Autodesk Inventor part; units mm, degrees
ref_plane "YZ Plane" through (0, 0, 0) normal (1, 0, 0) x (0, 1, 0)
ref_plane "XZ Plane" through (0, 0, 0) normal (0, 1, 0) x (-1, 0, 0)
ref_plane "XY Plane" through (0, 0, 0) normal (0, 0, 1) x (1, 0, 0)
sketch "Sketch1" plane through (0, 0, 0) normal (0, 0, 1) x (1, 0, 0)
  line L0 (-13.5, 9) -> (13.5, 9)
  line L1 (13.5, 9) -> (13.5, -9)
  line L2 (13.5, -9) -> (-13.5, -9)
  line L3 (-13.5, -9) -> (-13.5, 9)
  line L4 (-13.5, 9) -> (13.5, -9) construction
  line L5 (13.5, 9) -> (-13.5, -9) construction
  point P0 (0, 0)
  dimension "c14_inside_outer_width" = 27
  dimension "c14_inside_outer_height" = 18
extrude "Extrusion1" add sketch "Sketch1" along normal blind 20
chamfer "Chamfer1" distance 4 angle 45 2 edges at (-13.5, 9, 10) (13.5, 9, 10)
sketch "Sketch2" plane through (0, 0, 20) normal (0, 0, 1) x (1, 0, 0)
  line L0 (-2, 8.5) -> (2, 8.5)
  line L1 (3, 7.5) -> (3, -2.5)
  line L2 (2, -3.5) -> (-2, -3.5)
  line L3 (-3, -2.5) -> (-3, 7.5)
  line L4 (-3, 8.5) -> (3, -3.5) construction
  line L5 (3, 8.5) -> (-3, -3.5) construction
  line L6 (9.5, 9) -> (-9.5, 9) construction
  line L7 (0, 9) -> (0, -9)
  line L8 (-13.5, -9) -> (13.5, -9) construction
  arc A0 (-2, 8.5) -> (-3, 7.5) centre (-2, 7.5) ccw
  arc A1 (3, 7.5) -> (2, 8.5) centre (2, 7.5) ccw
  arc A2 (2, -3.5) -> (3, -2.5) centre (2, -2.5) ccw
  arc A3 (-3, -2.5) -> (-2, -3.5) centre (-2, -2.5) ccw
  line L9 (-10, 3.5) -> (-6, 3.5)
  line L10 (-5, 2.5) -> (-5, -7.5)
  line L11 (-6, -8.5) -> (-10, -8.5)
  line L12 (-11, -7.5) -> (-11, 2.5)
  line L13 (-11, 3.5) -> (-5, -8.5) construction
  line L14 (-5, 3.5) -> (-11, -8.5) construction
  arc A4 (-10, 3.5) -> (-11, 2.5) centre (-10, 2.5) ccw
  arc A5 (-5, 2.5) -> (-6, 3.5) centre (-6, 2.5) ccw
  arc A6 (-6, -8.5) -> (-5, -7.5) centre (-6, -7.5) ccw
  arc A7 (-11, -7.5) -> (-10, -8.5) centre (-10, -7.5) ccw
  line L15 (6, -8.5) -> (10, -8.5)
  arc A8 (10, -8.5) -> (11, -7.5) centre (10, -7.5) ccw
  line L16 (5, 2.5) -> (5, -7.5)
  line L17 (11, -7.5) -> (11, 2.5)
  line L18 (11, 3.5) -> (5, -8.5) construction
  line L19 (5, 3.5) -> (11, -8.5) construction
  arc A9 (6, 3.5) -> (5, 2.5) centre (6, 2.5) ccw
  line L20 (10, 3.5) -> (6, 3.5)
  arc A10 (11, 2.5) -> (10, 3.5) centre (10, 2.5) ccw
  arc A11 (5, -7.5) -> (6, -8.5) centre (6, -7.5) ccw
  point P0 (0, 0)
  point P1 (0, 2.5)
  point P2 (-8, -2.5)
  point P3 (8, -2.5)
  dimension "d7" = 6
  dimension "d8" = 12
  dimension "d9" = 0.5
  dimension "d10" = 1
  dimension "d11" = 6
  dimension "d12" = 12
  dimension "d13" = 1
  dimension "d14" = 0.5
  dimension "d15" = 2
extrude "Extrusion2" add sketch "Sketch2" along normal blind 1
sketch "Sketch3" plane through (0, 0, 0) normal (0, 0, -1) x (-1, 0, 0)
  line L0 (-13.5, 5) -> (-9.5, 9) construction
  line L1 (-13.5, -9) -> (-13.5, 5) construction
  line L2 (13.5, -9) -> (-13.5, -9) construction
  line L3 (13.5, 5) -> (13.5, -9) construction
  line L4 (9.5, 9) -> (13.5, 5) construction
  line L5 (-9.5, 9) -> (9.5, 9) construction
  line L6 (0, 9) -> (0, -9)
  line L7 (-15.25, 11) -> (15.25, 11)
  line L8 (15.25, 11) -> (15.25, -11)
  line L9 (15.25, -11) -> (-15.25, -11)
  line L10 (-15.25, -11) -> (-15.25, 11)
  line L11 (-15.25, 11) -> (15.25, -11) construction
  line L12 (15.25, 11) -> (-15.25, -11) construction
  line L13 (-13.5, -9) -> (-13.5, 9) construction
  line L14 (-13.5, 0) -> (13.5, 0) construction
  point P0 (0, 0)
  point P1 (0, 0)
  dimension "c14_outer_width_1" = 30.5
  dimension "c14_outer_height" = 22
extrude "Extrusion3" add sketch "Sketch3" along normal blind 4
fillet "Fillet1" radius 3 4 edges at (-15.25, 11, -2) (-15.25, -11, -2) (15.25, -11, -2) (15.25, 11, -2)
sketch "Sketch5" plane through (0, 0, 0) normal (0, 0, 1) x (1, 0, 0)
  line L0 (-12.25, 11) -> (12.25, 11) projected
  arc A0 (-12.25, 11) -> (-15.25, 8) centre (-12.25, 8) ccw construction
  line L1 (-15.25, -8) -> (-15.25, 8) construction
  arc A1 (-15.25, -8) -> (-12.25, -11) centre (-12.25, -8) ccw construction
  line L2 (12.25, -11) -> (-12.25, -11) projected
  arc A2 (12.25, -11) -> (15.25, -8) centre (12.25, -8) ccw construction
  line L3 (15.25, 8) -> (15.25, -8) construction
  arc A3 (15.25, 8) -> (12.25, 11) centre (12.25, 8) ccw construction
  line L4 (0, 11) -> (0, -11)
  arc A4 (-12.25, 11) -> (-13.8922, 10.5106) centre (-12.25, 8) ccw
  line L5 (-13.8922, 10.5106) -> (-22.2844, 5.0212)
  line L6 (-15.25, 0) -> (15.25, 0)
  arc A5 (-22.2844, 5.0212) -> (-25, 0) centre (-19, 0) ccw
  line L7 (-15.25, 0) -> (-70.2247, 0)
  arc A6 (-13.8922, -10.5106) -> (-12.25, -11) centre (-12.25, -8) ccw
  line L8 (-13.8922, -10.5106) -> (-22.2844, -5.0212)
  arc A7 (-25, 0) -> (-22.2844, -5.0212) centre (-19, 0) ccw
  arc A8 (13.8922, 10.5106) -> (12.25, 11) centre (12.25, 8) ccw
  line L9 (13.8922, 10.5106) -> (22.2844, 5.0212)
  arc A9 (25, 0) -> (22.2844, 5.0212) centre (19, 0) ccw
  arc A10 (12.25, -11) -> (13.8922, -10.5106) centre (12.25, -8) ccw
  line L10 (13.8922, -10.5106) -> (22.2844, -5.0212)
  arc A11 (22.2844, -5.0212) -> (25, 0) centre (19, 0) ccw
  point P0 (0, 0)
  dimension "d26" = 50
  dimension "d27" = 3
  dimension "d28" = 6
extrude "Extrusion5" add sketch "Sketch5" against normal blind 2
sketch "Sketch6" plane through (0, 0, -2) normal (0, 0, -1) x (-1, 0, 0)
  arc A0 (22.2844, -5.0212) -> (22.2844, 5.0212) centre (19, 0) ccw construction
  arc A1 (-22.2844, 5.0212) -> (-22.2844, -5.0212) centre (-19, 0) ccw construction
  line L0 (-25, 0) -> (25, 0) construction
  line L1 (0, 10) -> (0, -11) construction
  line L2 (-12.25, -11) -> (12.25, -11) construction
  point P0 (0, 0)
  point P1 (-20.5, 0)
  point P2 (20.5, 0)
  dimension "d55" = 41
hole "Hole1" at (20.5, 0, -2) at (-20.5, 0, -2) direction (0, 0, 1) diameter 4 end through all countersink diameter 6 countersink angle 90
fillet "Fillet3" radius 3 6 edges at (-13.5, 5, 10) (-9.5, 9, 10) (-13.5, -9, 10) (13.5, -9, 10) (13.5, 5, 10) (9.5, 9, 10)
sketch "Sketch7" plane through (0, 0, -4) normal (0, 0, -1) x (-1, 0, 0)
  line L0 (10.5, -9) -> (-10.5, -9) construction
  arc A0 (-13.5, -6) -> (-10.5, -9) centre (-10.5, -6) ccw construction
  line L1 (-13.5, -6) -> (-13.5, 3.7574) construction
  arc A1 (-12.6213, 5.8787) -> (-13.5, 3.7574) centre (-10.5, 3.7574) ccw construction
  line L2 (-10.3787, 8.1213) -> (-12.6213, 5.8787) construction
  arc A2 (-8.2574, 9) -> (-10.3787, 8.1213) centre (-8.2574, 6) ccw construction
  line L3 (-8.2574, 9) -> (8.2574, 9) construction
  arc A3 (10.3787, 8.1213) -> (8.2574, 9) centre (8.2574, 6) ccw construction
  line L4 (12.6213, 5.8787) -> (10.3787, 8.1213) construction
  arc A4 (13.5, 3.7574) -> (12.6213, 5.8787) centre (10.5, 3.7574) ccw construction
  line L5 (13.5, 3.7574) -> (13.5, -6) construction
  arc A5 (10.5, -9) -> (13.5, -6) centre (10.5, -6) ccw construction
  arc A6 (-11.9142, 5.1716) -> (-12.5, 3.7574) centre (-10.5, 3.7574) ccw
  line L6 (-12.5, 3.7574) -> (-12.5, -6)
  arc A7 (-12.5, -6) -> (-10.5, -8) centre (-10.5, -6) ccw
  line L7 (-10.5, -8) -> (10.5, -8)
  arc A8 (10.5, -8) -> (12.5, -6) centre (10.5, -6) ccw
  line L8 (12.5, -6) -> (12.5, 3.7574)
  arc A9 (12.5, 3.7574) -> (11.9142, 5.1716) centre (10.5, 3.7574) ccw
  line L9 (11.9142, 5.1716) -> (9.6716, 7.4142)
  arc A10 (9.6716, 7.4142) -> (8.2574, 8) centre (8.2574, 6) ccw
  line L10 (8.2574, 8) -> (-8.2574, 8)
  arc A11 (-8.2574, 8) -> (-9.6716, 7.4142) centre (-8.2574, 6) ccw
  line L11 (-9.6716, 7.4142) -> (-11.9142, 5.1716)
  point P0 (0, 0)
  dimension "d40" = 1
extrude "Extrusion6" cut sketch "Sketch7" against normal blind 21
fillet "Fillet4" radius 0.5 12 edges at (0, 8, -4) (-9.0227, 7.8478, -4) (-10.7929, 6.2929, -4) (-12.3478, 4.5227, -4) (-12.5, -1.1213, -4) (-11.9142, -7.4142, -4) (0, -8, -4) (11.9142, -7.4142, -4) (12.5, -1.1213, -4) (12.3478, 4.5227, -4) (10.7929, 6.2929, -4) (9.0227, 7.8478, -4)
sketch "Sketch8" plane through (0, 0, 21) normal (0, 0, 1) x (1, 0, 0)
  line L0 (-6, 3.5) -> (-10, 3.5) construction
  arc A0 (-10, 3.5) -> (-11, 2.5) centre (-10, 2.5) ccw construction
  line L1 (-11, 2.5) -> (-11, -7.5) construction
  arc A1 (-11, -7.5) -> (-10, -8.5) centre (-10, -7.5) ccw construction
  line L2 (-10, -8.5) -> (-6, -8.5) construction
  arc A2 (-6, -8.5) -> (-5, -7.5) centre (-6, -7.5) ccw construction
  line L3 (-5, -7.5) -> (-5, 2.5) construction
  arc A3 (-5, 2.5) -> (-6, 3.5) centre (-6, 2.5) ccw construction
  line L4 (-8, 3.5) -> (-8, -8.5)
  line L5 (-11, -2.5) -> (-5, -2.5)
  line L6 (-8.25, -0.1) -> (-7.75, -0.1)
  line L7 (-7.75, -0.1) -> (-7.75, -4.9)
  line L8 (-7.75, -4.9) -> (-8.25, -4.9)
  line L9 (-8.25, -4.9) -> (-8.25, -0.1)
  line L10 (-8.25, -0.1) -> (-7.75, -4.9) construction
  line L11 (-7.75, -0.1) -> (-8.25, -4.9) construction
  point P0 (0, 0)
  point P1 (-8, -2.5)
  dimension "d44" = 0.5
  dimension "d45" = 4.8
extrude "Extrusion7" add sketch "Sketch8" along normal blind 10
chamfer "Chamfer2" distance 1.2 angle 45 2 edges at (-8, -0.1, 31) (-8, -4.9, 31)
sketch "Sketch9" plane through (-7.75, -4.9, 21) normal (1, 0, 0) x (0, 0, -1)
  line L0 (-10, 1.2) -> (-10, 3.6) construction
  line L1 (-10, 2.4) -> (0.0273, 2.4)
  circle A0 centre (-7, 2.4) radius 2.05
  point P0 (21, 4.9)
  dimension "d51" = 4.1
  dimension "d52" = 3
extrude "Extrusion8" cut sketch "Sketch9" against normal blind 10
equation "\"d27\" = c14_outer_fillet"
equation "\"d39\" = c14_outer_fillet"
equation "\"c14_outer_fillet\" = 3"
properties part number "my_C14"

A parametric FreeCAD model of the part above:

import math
import FreeCAD as App
import Part
import Sketcher

V = App.Vector


def edges_at(feature, points):
    """Names of the edges that pass closest to the given points."""
    edges = feature.Shape.Edges
    near = lambda p: min(range(len(edges)), key=lambda i: edges[i].distToShape(Part.Vertex(*p))[0])
    return sorted({f"Edge{near(p) + 1}" for p in points})

doc = App.newDocument("Part")
body = doc.addObject("PartDesign::Body", "Body")

sketch1 = body.newObject("Sketcher::SketchObject", "Sketch")
sketch1.AttachmentSupport = (doc.getObject("XY_Plane"), [""])
sketch1.MapMode = "FlatFace"
sketch1.addGeometry([
    Part.LineSegment(V(13.5, 9, 0), V(-13.5, 9, 0)),
    Part.LineSegment(V(-13.5, 9, 0), V(-13.5, -9, 0)),
    Part.LineSegment(V(-13.5, -9, 0), V(13.5, -9, 0)),
    Part.LineSegment(V(13.5, -9, 0), V(13.5, 9, 0)),
], False)
sketch1.addConstraint([
    Sketcher.Constraint("Coincident", 0, 2, 1, 1),
    Sketcher.Constraint("Coincident", 1, 2, 2, 1),
    Sketcher.Constraint("Coincident", 2, 2, 3, 1),
    Sketcher.Constraint("Coincident", 3, 2, 0, 1),
    Sketcher.Constraint("Horizontal", 0),
    Sketcher.Constraint("Vertical", 1),
    Sketcher.Constraint("Horizontal", 2),
    Sketcher.Constraint("Vertical", 3),
    Sketcher.Constraint("Symmetric", 0, 2, 2, 2, -1, 1),
    Sketcher.Constraint("DistanceX", 0, 2, 0, 1, 27.0),
    Sketcher.Constraint("DistanceY", 1, 2, 1, 1, 18.0),
])
pad1 = body.newObject("PartDesign::Pad", "Pad")
pad1.Profile = sketch1
pad1.Length = 20
doc.recompute()

chamfer = body.newObject("PartDesign::Chamfer", "Chamfer")
chamfer.Base = (pad1, edges_at(pad1, [(-13.5, 9, 10), (13.5, 9, 10)]))
chamfer.Size = 4

sketch2 = body.newObject("Sketcher::SketchObject", "Sketch001")
sketch2.AttachmentSupport = (doc.getObject("XY_Plane"), [""])
sketch2.MapMode = "FlatFace"
sketch2.AttachmentOffset = App.Placement(V(0, 0, 20), App.Rotation())
sketch2.addGeometry([
    Part.ArcOfCircle(Part.Circle(V(-2, 7.5, 0), V(0, 0, 1), 1), math.radians(90), math.radians(180)),
    Part.LineSegment(V(-3, 7.5, 0), V(-3, -2.5, 0)),
    Part.ArcOfCircle(Part.Circle(V(-2, -2.5, 0), V(0, 0, 1), 1), math.radians(180), math.radians(270)),
    Part.LineSegment(V(-2, -3.5, 0), V(2, -3.5, 0)),
    Part.ArcOfCircle(Part.Circle(V(2, -2.5, 0), V(0, 0, 1), 1), math.radians(-90), math.radians(0)),
    Part.LineSegment(V(3, -2.5, 0), V(3, 7.5, 0)),
    Part.ArcOfCircle(Part.Circle(V(2, 7.5, 0), V(0, 0, 1), 1), math.radians(0), math.radians(90)),
    Part.LineSegment(V(2, 8.5, 0), V(-2, 8.5, 0)),
    Part.LineSegment(V(-6, 3.5, 0), V(-10, 3.5, 0)),
    Part.ArcOfCircle(Part.Circle(V(-10, 2.5, 0), V(0, 0, 1), 1), math.radians(90), math.radians(180)),
    Part.LineSegment(V(-11, 2.5, 0), V(-11, -7.5, 0)),
    Part.ArcOfCircle(Part.Circle(V(-10, -7.5, 0), V(0, 0, 1), 1), math.radians(180), math.radians(270)),
    Part.LineSegment(V(-10, -8.5, 0), V(-6, -8.5, 0)),
    Part.ArcOfCircle(Part.Circle(V(-6, -7.5, 0), V(0, 0, 1), 1), math.radians(-90), math.radians(0)),
    Part.LineSegment(V(-5, -7.5, 0), V(-5, 2.5, 0)),
    Part.ArcOfCircle(Part.Circle(V(-6, 2.5, 0), V(0, 0, 1), 1), math.radians(0), math.radians(90)),
    Part.ArcOfCircle(Part.Circle(V(6, -7.5, 0), V(0, 0, 1), 1), math.radians(180), math.radians(270)),
    Part.LineSegment(V(6, -8.5, 0), V(10, -8.5, 0)),
    Part.ArcOfCircle(Part.Circle(V(10, -7.5, 0), V(0, 0, 1), 1), math.radians(-90), math.radians(0)),
    Part.LineSegment(V(11, -7.5, 0), V(11, 2.5, 0)),
    Part.ArcOfCircle(Part.Circle(V(10, 2.5, 0), V(0, 0, 1), 1), math.radians(0), math.radians(90)),
    Part.LineSegment(V(10, 3.5, 0), V(6, 3.5, 0)),
    Part.ArcOfCircle(Part.Circle(V(6, 2.5, 0), V(0, 0, 1), 1), math.radians(90), math.radians(180)),
    Part.LineSegment(V(5, 2.5, 0), V(5, -7.5, 0)),
], False)
sketch2.addConstraint([
    Sketcher.Constraint("Tangent", 0, 2, 1, 1),
    Sketcher.Constraint("Tangent", 1, 2, 2, 1),
    Sketcher.Constraint("Tangent", 2, 2, 3, 1),
    Sketcher.Constraint("Tangent", 3, 2, 4, 1),
    Sketcher.Constraint("Tangent", 4, 2, 5, 1),
    Sketcher.Constraint("Tangent", 5, 2, 6, 1),
    Sketcher.Constraint("Tangent", 6, 2, 7, 1),
    Sketcher.Constraint("Tangent", 7, 2, 0, 1),
    Sketcher.Constraint("Tangent", 8, 2, 9, 1),
    Sketcher.Constraint("Tangent", 9, 2, 10, 1),
    Sketcher.Constraint("Tangent", 10, 2, 11, 1),
    Sketcher.Constraint("Tangent", 11, 2, 12, 1),
    Sketcher.Constraint("Tangent", 12, 2, 13, 1),
    Sketcher.Constraint("Tangent", 13, 2, 14, 1),
    Sketcher.Constraint("Tangent", 14, 2, 15, 1),
    Sketcher.Constraint("Tangent", 15, 2, 8, 1),
    Sketcher.Constraint("Tangent", 16, 2, 17, 1),
    Sketcher.Constraint("Tangent", 17, 2, 18, 1),
    Sketcher.Constraint("Tangent", 18, 2, 19, 1),
    Sketcher.Constraint("Tangent", 19, 2, 20, 1),
    Sketcher.Constraint("Tangent", 20, 2, 21, 1),
    Sketcher.Constraint("Tangent", 21, 2, 22, 1),
    Sketcher.Constraint("Tangent", 22, 2, 23, 1),
    Sketcher.Constraint("Tangent", 23, 2, 16, 1),
    Sketcher.Constraint("Vertical", 1),
    Sketcher.Constraint("Horizontal", 3),
    Sketcher.Constraint("Vertical", 5),
    Sketcher.Constraint("Horizontal", 7),
    Sketcher.Constraint("Horizontal", 8),
    Sketcher.Constraint("Vertical", 10),
    Sketcher.Constraint("Horizontal", 12),
    Sketcher.Constraint("Vertical", 14),
    Sketcher.Constraint("Horizontal", 17),
    Sketcher.Constraint("Vertical", 19),
    Sketcher.Constraint("Horizontal", 21),
    Sketcher.Constraint("Vertical", 23),
    Sketcher.Constraint("Equal", 0, 2),
    Sketcher.Constraint("Equal", 2, 4),
    Sketcher.Constraint("Equal", 4, 6),
    Sketcher.Constraint("Equal", 6, 9),
    Sketcher.Constraint("Equal", 9, 11),
    Sketcher.Constraint("Equal", 11, 13),
    Sketcher.Constraint("Equal", 13, 15),
    Sketcher.Constraint("Equal", 15, 16),
    Sketcher.Constraint("Equal", 16, 18),
    Sketcher.Constraint("Equal", 18, 20),
    Sketcher.Constraint("Equal", 20, 22),
    Sketcher.Constraint("Symmetric", 13, 3, 16, 3, -2),
    Sketcher.Constraint("Symmetric", 9, 3, 20, 3, -2),
    Sketcher.Constraint("Equal", 7, 8),
    Sketcher.Constraint("Equal", 5, 10),
    Sketcher.Constraint("Radius", 0, 1.0),
    Sketcher.Constraint("DistanceX", 0, 3, -1, 1, 2.0),
    Sketcher.Constraint("DistanceX", -1, 1, 4, 3, 2.0),
    Sketcher.Constraint("DistanceX", 13, 3, -1, 1, 6.0),
    Sketcher.Constraint("DistanceY", 2, 2, 15, 3, 6.0),
    Sketcher.Constraint("DistanceY", 22, 3, 6, 2, 6.0),
    Sketcher.Constraint("DistanceY", -1, 1, 0, 3, 7.5),
])
pad2 = body.newObject("PartDesign::Pad", "Pad001")
pad2.Profile = sketch2
pad2.Length = 1

sketch3 = body.newObject("Sketcher::SketchObject", "Sketch002")
sketch3.AttachmentSupport = (doc.getObject("XY_Plane"), [""])
sketch3.MapMode = "FlatFace"
sketch3.addGeometry([
    Part.LineSegment(V(-15.25, 11, 0), V(15.25, 11, 0)),
    Part.LineSegment(V(15.25, 11, 0), V(15.25, -11, 0)),
    Part.LineSegment(V(15.25, -11, 0), V(-15.25, -11, 0)),
    Part.LineSegment(V(-15.25, -11, 0), V(-15.25, 11, 0)),
], False)
sketch3.addConstraint([
    Sketcher.Constraint("Coincident", 0, 2, 1, 1),
    Sketcher.Constraint("Coincident", 1, 2, 2, 1),
    Sketcher.Constraint("Coincident", 2, 2, 3, 1),
    Sketcher.Constraint("Coincident", 3, 2, 0, 1),
    Sketcher.Constraint("Horizontal", 0),
    Sketcher.Constraint("Vertical", 1),
    Sketcher.Constraint("Horizontal", 2),
    Sketcher.Constraint("Vertical", 3),
    Sketcher.Constraint("Symmetric", 0, 2, 2, 2, -1, 1),
    Sketcher.Constraint("DistanceY", 1, 2, 1, 1, 22.0),
    Sketcher.Constraint("DistanceX", 0, 1, 0, 2, 30.5),
])
pad3 = body.newObject("PartDesign::Pad", "Pad002")
pad3.Profile = sketch3
pad3.Length = 4
pad3.Reversed = True
doc.recompute()

fillet = body.newObject("PartDesign::Fillet", "Fillet")
fillet.Base = (pad3, edges_at(pad3, [
    (-15.25, 11, -2),
    (-15.25, -11, -2),
    (15.25, -11, -2),
    (15.25, 11, -2),
]))
fillet.Radius = 3

sketch4 = body.newObject("Sketcher::SketchObject", "Sketch003")
sketch4.AttachmentSupport = (doc.getObject("XY_Plane"), [""])
sketch4.MapMode = "FlatFace"
sketch4.addGeometry([
    Part.ArcOfCircle(Part.Circle(V(-12.25, 8, 0), V(0, 0, 1), 3), math.radians(90), math.radians(123.188963)),
    Part.LineSegment(V(-13.8922, 10.5106, 0), V(-22.2844, 5.0212, 0)),
    Part.ArcOfCircle(Part.Circle(V(-19, 0, 0), V(0, 0, 1), 6), math.radians(123.188963), math.radians(180)),
    Part.ArcOfCircle(Part.Circle(V(-19, 0, 0), V(0, 0, 1), 5.999978), math.radians(180), math.radians(236.811037)),
    Part.LineSegment(V(-22.2844, -5.0212, 0), V(-13.8922, -10.5106, 0)),
    Part.ArcOfCircle(Part.Circle(V(-12.25, -8, 0), V(0, 0, 1), 3), math.radians(-123.188963), math.radians(-90)),
    Part.LineSegment(V(-12.25, -11, 0), V(12.25, -11, 0)),
    Part.ArcOfCircle(Part.Circle(V(12.25, -8, 0), V(0, 0, 1), 3), math.radians(-90), math.radians(-56.811037)),
    Part.LineSegment(V(13.8922, -10.5106, 0), V(22.2844, -5.0212, 0)),
    Part.ArcOfCircle(Part.Circle(V(19, 0, 0), V(0, 0, 1), 6), math.radians(-56.811037), math.radians(0)),
    Part.ArcOfCircle(Part.Circle(V(19, 0, 0), V(0, 0, 1), 5.999978), math.radians(0), math.radians(56.811037)),
    Part.LineSegment(V(22.2844, 5.0212, 0), V(13.8922, 10.5106, 0)),
    Part.ArcOfCircle(Part.Circle(V(12.25, 8, 0), V(0, 0, 1), 3), math.radians(56.811037), math.radians(90)),
    Part.LineSegment(V(12.25, 11, 0), V(-12.25, 11, 0)),
], False)
sketch4.addConstraint([
    Sketcher.Constraint("Tangent", 0, 2, 1, 1),
    Sketcher.Constraint("Tangent", 1, 2, 2, 1),
    Sketcher.Constraint("Tangent", 2, 2, 3, 1),
    Sketcher.Constraint("Tangent", 3, 2, 4, 1),
    Sketcher.Constraint("Tangent", 4, 2, 5, 1),
    Sketcher.Constraint("Tangent", 5, 2, 6, 1),
    Sketcher.Constraint("Tangent", 6, 2, 7, 1),
    Sketcher.Constraint("Tangent", 7, 2, 8, 1),
    Sketcher.Constraint("Tangent", 8, 2, 9, 1),
    Sketcher.Constraint("Tangent", 9, 2, 10, 1),
    Sketcher.Constraint("Tangent", 10, 2, 11, 1),
    Sketcher.Constraint("Tangent", 11, 2, 12, 1),
    Sketcher.Constraint("Tangent", 12, 2, 13, 1),
    Sketcher.Constraint("Tangent", 13, 2, 0, 1),
    Sketcher.Constraint("Horizontal", 6),
    Sketcher.Constraint("Horizontal", 13),
    Sketcher.Constraint("Equal", 2, 3),
    Sketcher.Constraint("Equal", 0, 5),
    Sketcher.Constraint("Equal", 5, 7),
    Sketcher.Constraint("Equal", 3, 9),
    Sketcher.Constraint("Equal", 9, 10),
    Sketcher.Constraint("Equal", 7, 12),
    Sketcher.Constraint("Symmetric", 0, 3, 7, 3, -1, 1),
    Sketcher.Constraint("Symmetric", 2, 3, 9, 3, -1, 1),
    Sketcher.Constraint("Symmetric", 4, 2, 7, 2, -2),
    Sketcher.Constraint("PointOnObject", 2, 2, -1),
    Sketcher.Constraint("PointOnObject", 9, 2, -1),
    Sketcher.Constraint("Parallel", 4, 11),
    Sketcher.Constraint("Radius", 0, 3.0),
    Sketcher.Constraint("Radius", 2, 6.0),
    Sketcher.Constraint("DistanceX", 6, 1, 6, 2, 24.5),
    Sketcher.Constraint("DistanceY", -1, 1, 0, 3, 8.0),
    Sketcher.Constraint("DistanceX", 2, 3, -1, 1, 19.0),
])
pad4 = body.newObject("PartDesign::Pad", "Pad003")
pad4.Profile = sketch4
pad4.Length = 2
pad4.Reversed = True

sketch5 = body.newObject("Sketcher::SketchObject", "Sketch004")
sketch5.AttachmentSupport = (doc.getObject("XY_Plane"), [""])
sketch5.MapMode = "FlatFace"
sketch5.AttachmentOffset = App.Placement(V(0, 0, -2), App.Rotation())
sketch5.addGeometry([
    Part.Circle(V(20.5, 0, 0), V(0, 0, 1), 2),
    Part.Circle(V(-20.5, 0, 0), V(0, 0, 1), 2),
], False)
sketch5.addConstraint([
    Sketcher.Constraint("Equal", 0, 1),
    Sketcher.Constraint("Symmetric", 0, 3, 1, 3, -1, 1),
    Sketcher.Constraint("PointOnObject", 0, 3, -1),
    Sketcher.Constraint("Diameter", 0, 4.0),
    Sketcher.Constraint("DistanceX", 1, 3, 0, 3, 41.0),
])
doc.recompute()
hole = body.newObject("PartDesign::Hole", "Hole")
hole.Profile = sketch5
hole.ThreadType = "None"
hole.Diameter = 4
hole.DepthType = "ThroughAll"
hole.HoleCutType = "Countersink"
hole.HoleCutDiameter = 6
hole.HoleCutCountersinkAngle = 90
hole.Reversed = True
doc.recompute()

fillet2 = body.newObject("PartDesign::Fillet", "Fillet001")
fillet2.Base = (hole, edges_at(hole, [
    (-13.5, 5, 10),
    (-9.5, 9, 10),
    (-13.5, -9, 10),
    (13.5, -9, 10),
    (13.5, 5, 10),
    (9.5, 9, 10),
]))
fillet2.Radius = 3

sketch6 = body.newObject("Sketcher::SketchObject", "Sketch005")
sketch6.AttachmentSupport = (doc.getObject("XY_Plane"), [""])
sketch6.MapMode = "FlatFace"
sketch6.AttachmentOffset = App.Placement(V(0, 0, -4), App.Rotation())
sketch6.addGeometry([
    Part.LineSegment(V(9.6716, 7.4142, 0), V(11.9142, 5.1716, 0)),
    Part.ArcOfCircle(Part.Circle(V(10.5, 3.7574, 0), V(0, 0, 1), 1.999981), math.radians(0), math.radians(45)),
    Part.LineSegment(V(12.5, 3.7574, 0), V(12.5, -6, 0)),
    Part.ArcOfCircle(Part.Circle(V(10.5, -6, 0), V(0, 0, 1), 2), math.radians(-90), math.radians(0)),
    Part.LineSegment(V(10.5, -8, 0), V(-10.5, -8, 0)),
    Part.ArcOfCircle(Part.Circle(V(-10.5, -6, 0), V(0, 0, 1), 2), math.radians(180), math.radians(270)),
    Part.LineSegment(V(-12.5, -6, 0), V(-12.5, 3.7574, 0)),
    Part.ArcOfCircle(Part.Circle(V(-10.5, 3.7574, 0), V(0, 0, 1), 2), math.radians(135), math.radians(180)),
    Part.LineSegment(V(-11.9142, 5.1716, 0), V(-9.6716, 7.4142, 0)),
    Part.ArcOfCircle(Part.Circle(V(-8.2574, 6, 0), V(0, 0, 1), 1.999981), math.radians(90), math.radians(135)),
    Part.LineSegment(V(-8.2574, 8, 0), V(8.2574, 8, 0)),
    Part.ArcOfCircle(Part.Circle(V(8.2574, 6, 0), V(0, 0, 1), 2), math.radians(45), math.radians(90)),
], False)
sketch6.addConstraint([
    Sketcher.Constraint("Tangent", 0, 2, 1, 2),
    Sketcher.Constraint("Tangent", 1, 1, 2, 1),
    Sketcher.Constraint("Tangent", 2, 2, 3, 2),
    Sketcher.Constraint("Tangent", 3, 1, 4, 1),
    Sketcher.Constraint("Tangent", 4, 2, 5, 2),
    Sketcher.Constraint("Tangent", 5, 1, 6, 1),
    Sketcher.Constraint("Tangent", 6, 2, 7, 2),
    Sketcher.Constraint("Tangent", 7, 1, 8, 1),
    Sketcher.Constraint("Tangent", 8, 2, 9, 2),
    Sketcher.Constraint("Tangent", 9, 1, 10, 1),
    Sketcher.Constraint("Tangent", 10, 2, 11, 2),
    Sketcher.Constraint("Tangent", 11, 1, 0, 1),
    Sketcher.Constraint("Vertical", 2),
    Sketcher.Constraint("Horizontal", 4),
    Sketcher.Constraint("Vertical", 6),
    Sketcher.Constraint("Horizontal", 10),
    Sketcher.Constraint("Equal", 1, 3),
    Sketcher.Constraint("Equal", 3, 5),
    Sketcher.Constraint("Equal", 5, 7),
    Sketcher.Constraint("Equal", 7, 9),
    Sketcher.Constraint("Equal", 9, 11),
    Sketcher.Constraint("Symmetric", 1, 3, 7, 3, -2),
    Sketcher.Constraint("Perpendicular", 0, 8),
    Sketcher.Constraint("Horizontal", 0, 2, 7, 1),
    Sketcher.Constraint("Radius", 1, 2.0),
    Sketcher.Constraint("DistanceX", 4, 2, 4, 1, 21.0),
    Sketcher.Constraint("DistanceY", 3, 3, -1, 1, 6.0),
    Sketcher.Constraint("DistanceY", -1, 1, 9, 3, 6.0),
    Sketcher.Constraint("DistanceX", 10, 1, 10, 2, 16.5148),
])
pocket1 = body.newObject("PartDesign::Pocket", "Pocket")
pocket1.Profile = sketch6
pocket1.Length = 21
pocket1.Reversed = True
doc.recompute()

fillet3 = body.newObject("PartDesign::Fillet", "Fillet002")
fillet3.Base = (pocket1, edges_at(pocket1, [
    (0, 8, -4),
    (-9.023, 7.848, -4),
    (-10.793, 6.293, -4),
    (-12.348, 4.523, -4),
    (-12.5, -1.121, -4),
    (-11.914, -7.414, -4),
    (0, -8, -4),
    (11.914, -7.414, -4),
    (12.5, -1.121, -4),
    (12.348, 4.523, -4),
    (10.793, 6.293, -4),
    (9.023, 7.848, -4),
]))
fillet3.Radius = 0.5

sketch7 = body.newObject("Sketcher::SketchObject", "Sketch006")
sketch7.AttachmentSupport = (doc.getObject("XY_Plane"), [""])
sketch7.MapMode = "FlatFace"
sketch7.AttachmentOffset = App.Placement(V(0, 0, 21), App.Rotation())
sketch7.addGeometry([
    Part.LineSegment(V(-7.75, -0.1, 0), V(-8.25, -0.1, 0)),
    Part.LineSegment(V(-8.25, -0.1, 0), V(-8.25, -4.9, 0)),
    Part.LineSegment(V(-8.25, -4.9, 0), V(-7.75, -4.9, 0)),
    Part.LineSegment(V(-7.75, -4.9, 0), V(-7.75, -0.1, 0)),
], False)
sketch7.addConstraint([
    Sketcher.Constraint("Coincident", 0, 2, 1, 1),
    Sketcher.Constraint("Coincident", 1, 2, 2, 1),
    Sketcher.Constraint("Coincident", 2, 2, 3, 1),
    Sketcher.Constraint("Coincident", 3, 2, 0, 1),
    Sketcher.Constraint("Horizontal", 0),
    Sketcher.Constraint("Vertical", 1),
    Sketcher.Constraint("Horizontal", 2),
    Sketcher.Constraint("Vertical", 3),
    Sketcher.Constraint("DistanceX", 0, 2, 0, 1, 0.5),
    Sketcher.Constraint("DistanceY", 1, 2, 1, 1, 4.8),
    Sketcher.Constraint("DistanceY", 0, 2, -1, 1, 0.1),
    Sketcher.Constraint("DistanceX", 0, 2, -1, 1, 8.25),
])
pad5 = body.newObject("PartDesign::Pad", "Pad004")
pad5.Profile = sketch7
pad5.Length = 10
doc.recompute()

chamfer2 = body.newObject("PartDesign::Chamfer", "Chamfer001")
chamfer2.Base = (pad5, edges_at(pad5, [(-8, -0.1, 31), (-8, -4.9, 31)]))
chamfer2.Size = 1.2

sketch8 = body.newObject("Sketcher::SketchObject", "Sketch007")
sketch8.AttachmentSupport = (doc.getObject("YZ_Plane"), [""])
sketch8.MapMode = "FlatFace"
sketch8.AttachmentOffset = App.Placement(V(0, 0, -7.75), App.Rotation())
sketch8.addGeometry(Part.Circle(V(-2.5, 28, 0), V(0, 0, 1), 2.05), False)
sketch8.addConstraint([
    Sketcher.Constraint("Diameter", 0, 4.1),
    Sketcher.Constraint("DistanceY", -1, 1, 0, 3, 28.0),
    Sketcher.Constraint("DistanceX", 0, 3, -1, 1, 2.5),
])
pocket2 = body.newObject("PartDesign::Pocket", "Pocket001")
pocket2.Profile = sketch8
pocket2.Length = 10

doc.recompute()
